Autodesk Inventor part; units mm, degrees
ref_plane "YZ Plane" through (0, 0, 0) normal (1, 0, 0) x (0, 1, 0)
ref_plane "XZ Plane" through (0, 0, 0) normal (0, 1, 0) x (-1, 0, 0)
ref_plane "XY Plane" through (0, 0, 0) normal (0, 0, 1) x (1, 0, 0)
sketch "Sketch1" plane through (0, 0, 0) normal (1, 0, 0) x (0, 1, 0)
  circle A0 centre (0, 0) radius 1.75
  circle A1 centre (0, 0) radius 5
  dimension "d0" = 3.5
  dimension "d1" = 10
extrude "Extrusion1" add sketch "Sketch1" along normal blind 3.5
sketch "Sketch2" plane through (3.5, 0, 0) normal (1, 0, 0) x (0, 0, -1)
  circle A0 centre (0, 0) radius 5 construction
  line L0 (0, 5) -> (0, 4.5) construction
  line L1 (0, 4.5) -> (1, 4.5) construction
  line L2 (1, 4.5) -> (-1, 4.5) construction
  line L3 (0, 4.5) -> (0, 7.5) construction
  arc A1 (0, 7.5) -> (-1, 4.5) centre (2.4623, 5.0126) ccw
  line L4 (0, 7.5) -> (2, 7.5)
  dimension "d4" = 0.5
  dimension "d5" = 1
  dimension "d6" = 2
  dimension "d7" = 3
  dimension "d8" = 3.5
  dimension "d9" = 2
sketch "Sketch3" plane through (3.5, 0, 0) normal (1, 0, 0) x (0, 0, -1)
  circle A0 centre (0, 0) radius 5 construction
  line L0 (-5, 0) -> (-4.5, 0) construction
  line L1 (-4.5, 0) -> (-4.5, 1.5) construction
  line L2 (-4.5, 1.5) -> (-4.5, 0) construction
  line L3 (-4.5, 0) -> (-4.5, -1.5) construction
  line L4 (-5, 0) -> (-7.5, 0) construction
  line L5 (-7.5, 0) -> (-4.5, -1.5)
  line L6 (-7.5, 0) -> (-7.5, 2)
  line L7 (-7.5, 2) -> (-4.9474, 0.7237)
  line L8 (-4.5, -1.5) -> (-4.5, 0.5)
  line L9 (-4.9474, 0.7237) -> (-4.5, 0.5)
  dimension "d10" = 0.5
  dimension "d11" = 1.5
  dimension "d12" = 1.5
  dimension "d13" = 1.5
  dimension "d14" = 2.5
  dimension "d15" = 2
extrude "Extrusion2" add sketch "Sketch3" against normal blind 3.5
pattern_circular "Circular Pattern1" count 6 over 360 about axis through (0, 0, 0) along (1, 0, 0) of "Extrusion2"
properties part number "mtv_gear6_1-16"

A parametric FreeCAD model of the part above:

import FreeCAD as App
import Part
import Sketcher
from FreeCAD import Vector
Q = App.Units.Quantity


def add_polygon(sketch, points):
    """Adds a closed chain of lines whose ends are joined by coincident constraints."""
    first, n = sketch.GeometryCount, len(points)
    for a, b in zip(points, points[1:] + points[:1]):
        sketch.addGeometry(Part.LineSegment(App.Vector(*a, 0), App.Vector(*b, 0)), False)
    for i in range(n):
        sketch.addConstraint(Sketcher.Constraint("Coincident", first + i, 2, first + (i + 1) % n, 1))

doc = App.newDocument("Part")
body = doc.addObject("PartDesign::Body", "Body")

sketch1 = body.newObject("Sketcher::SketchObject", "Sketch")
sketch1.AttachmentSupport = (doc.getObject("YZ_Plane"), [""])
sketch1.MapMode = "FlatFace"
sketch1.addGeometry(Part.Circle(Vector(0, 0, 0), Vector(0, 0, 1), 5), False)
sketch1.addGeometry(Part.Circle(Vector(0, 0, 0), Vector(0, 0, 1), 1.8), False)
sketch1.addConstraint(Sketcher.Constraint("Coincident", 0, 3, -1, 1))
sketch1.addConstraint(Sketcher.Constraint("Coincident", 1, 3, -1, 1))
sketch1.addConstraint(Sketcher.Constraint("Diameter", 0, Q("10 mm")))
sketch1.addConstraint(Sketcher.Constraint("Diameter", 1, Q("3.5 mm")))
pad1 = body.newObject("PartDesign::Pad", "Pad")
pad1.Profile = sketch1
pad1.Length = 3.5

sketch2 = body.newObject("Sketcher::SketchObject", "Sketch001")
sketch2.AttachmentSupport = (doc.getObject("YZ_Plane"), [""])
sketch2.MapMode = "FlatFace"
sketch2.AttachmentOffset = App.Placement(Vector(0, 0, 3.5), App.Rotation())
add_polygon(sketch2, [(2, 7.5), (0, 7.5), (-1.5, 4.5), (0.5, 4.5)])
sketch2.addConstraint(Sketcher.Constraint("Horizontal", 0))
sketch2.addConstraint(Sketcher.Constraint("Horizontal", 2))
sketch2.addConstraint(Sketcher.Constraint("PointOnObject", 0, 2, -2))
sketch2.addConstraint(Sketcher.Constraint("Parallel", 1, 3))
sketch2.addConstraint(Sketcher.Constraint("DistanceX", 0, 2, 0, 1, Q("2 mm")))
sketch2.addConstraint(Sketcher.Constraint("DistanceX", 1, 2, -1, 1, Q("1.5 mm")))
sketch2.addConstraint(Sketcher.Constraint("DistanceY", 1, 2, 0, 2, Q("3 mm")))
sketch2.addConstraint(Sketcher.Constraint("DistanceY", -1, 1, 0, 2, Q("7.5 mm")))
pad2 = body.newObject("PartDesign::Pad", "Pad001")
pad2.Profile = sketch2
pad2.Length = 3.5
pad2.Reversed = True
doc.recompute()

polarpattern = body.newObject("PartDesign::PolarPattern", "PolarPattern")
polarpattern.Originals = [pad2]
polarpattern.Axis = (doc.getObject("X_Axis"), [""])
polarpattern.Angle = 360
polarpattern.Occurrences = 6
body.Tip = polarpattern

doc.recompute()
